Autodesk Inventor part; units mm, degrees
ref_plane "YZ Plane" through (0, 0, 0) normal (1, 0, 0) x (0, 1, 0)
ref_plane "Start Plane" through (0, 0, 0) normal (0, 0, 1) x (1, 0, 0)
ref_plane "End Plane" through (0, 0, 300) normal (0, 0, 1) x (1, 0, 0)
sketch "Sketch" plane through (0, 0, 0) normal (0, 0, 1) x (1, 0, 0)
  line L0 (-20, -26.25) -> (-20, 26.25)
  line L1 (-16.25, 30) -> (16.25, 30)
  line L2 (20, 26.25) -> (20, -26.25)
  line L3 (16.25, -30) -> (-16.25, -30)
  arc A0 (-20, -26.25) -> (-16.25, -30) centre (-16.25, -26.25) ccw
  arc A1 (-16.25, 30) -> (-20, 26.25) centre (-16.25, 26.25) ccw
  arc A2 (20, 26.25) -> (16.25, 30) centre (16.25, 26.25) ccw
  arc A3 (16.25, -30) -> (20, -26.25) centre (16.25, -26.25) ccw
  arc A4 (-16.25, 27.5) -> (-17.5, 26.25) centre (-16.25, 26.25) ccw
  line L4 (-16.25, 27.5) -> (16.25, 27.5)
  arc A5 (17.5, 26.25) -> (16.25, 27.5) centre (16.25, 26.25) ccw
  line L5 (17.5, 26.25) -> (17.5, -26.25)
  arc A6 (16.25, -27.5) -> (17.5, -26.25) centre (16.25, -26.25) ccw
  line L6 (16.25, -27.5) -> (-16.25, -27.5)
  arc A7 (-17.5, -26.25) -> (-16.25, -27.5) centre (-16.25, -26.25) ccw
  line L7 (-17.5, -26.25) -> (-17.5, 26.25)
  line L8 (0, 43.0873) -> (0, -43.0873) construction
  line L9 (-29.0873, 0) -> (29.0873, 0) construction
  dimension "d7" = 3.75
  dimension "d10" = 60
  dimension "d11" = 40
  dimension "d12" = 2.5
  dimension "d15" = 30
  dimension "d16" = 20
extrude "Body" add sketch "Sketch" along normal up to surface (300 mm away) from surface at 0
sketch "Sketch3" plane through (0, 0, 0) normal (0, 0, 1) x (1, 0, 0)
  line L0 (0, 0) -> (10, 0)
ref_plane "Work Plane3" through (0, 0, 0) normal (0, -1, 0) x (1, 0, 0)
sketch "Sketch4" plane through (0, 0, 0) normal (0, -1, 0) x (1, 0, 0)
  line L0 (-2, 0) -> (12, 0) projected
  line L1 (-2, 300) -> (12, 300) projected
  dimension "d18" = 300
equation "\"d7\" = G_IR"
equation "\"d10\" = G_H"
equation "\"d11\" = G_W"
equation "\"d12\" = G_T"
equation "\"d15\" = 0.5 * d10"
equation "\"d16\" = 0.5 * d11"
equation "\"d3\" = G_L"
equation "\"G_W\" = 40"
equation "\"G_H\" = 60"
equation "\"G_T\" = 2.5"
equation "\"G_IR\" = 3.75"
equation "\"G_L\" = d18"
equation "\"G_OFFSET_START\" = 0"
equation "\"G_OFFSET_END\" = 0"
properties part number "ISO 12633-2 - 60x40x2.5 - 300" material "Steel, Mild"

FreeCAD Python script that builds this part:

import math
import FreeCAD as App
import Part
import Sketcher
Q = App.Units.Quantity

doc = App.newDocument("Part")
body = doc.addObject("PartDesign::Body", "Body")

# Sketch on XY plane
sketch1 = body.newObject("Sketcher::SketchObject", "Sketch")
sketch1.AttachmentSupport = (doc.getObject("XY_Plane"), [""])
sketch1.MapMode = "FlatFace"
sketch1.addGeometry(Part.LineSegment(App.Vector(-20, 26.2, 0), App.Vector(-20, -26.2, 0)), False)
sketch1.addGeometry(Part.ArcOfCircle(Part.Circle(App.Vector(-16.2, -26.2, 0), App.Vector(0, 0, 1), 3.8), math.radians(180), math.radians(270)), False)
sketch1.addGeometry(Part.LineSegment(App.Vector(-16.2, -30, 0), App.Vector(16.2, -30, 0)), False)
sketch1.addGeometry(Part.ArcOfCircle(Part.Circle(App.Vector(16.2, -26.2, 0), App.Vector(0, 0, 1), 3.8), math.radians(-90), math.radians(0)), False)
sketch1.addGeometry(Part.LineSegment(App.Vector(20, -26.2, 0), App.Vector(20, 26.2, 0)), False)
sketch1.addGeometry(Part.ArcOfCircle(Part.Circle(App.Vector(16.2, 26.2, 0), App.Vector(0, 0, 1), 3.8), math.radians(0), math.radians(90)), False)
sketch1.addGeometry(Part.LineSegment(App.Vector(16.2, 30, 0), App.Vector(-16.2, 30, 0)), False)
sketch1.addGeometry(Part.ArcOfCircle(Part.Circle(App.Vector(-16.2, 26.2, 0), App.Vector(0, 0, 1), 3.8), math.radians(90), math.radians(180)), False)
sketch1.addGeometry(Part.ArcOfCircle(Part.Circle(App.Vector(-16.2, 26.2, 0), App.Vector(0, 0, 1), 1.2), math.radians(90), math.radians(180)), False)
sketch1.addGeometry(Part.LineSegment(App.Vector(-16.2, 27.5, 0), App.Vector(16.2, 27.5, 0)), False)
sketch1.addGeometry(Part.ArcOfCircle(Part.Circle(App.Vector(16.2, 26.2, 0), App.Vector(0, 0, 1), 1.2), math.radians(0), math.radians(90)), False)
sketch1.addGeometry(Part.LineSegment(App.Vector(17.5, 26.2, 0), App.Vector(17.5, -26.2, 0)), False)
sketch1.addGeometry(Part.ArcOfCircle(Part.Circle(App.Vector(16.2, -26.2, 0), App.Vector(0, 0, 1), 1.2), math.radians(-90), math.radians(0)), False)
sketch1.addGeometry(Part.LineSegment(App.Vector(16.2, -27.5, 0), App.Vector(-16.2, -27.5, 0)), False)
sketch1.addGeometry(Part.ArcOfCircle(Part.Circle(App.Vector(-16.2, -26.2, 0), App.Vector(0, 0, 1), 1.2), math.radians(180), math.radians(270)), False)
sketch1.addGeometry(Part.LineSegment(App.Vector(-17.5, -26.2, 0), App.Vector(-17.5, 26.2, 0)), False)
sketch1.addConstraint(Sketcher.Constraint("Tangent", 0, 2, 1, 1))
sketch1.addConstraint(Sketcher.Constraint("Tangent", 1, 2, 2, 1))
sketch1.addConstraint(Sketcher.Constraint("Tangent", 2, 2, 3, 1))
sketch1.addConstraint(Sketcher.Constraint("Tangent", 3, 2, 4, 1))
sketch1.addConstraint(Sketcher.Constraint("Tangent", 4, 2, 5, 1))
sketch1.addConstraint(Sketcher.Constraint("Tangent", 5, 2, 6, 1))
sketch1.addConstraint(Sketcher.Constraint("Tangent", 6, 2, 7, 1))
sketch1.addConstraint(Sketcher.Constraint("Tangent", 7, 2, 0, 1))
sketch1.addConstraint(Sketcher.Constraint("Tangent", 8, 1, 9, 1))
sketch1.addConstraint(Sketcher.Constraint("Tangent", 9, 2, 10, 2))
sketch1.addConstraint(Sketcher.Constraint("Tangent", 10, 1, 11, 1))
sketch1.addConstraint(Sketcher.Constraint("Tangent", 11, 2, 12, 2))
sketch1.addConstraint(Sketcher.Constraint("Tangent", 12, 1, 13, 1))
sketch1.addConstraint(Sketcher.Constraint("Tangent", 13, 2, 14, 2))
sketch1.addConstraint(Sketcher.Constraint("Tangent", 14, 1, 15, 1))
sketch1.addConstraint(Sketcher.Constraint("Tangent", 15, 2, 8, 2))
sketch1.addConstraint(Sketcher.Constraint("Vertical", 0))
sketch1.addConstraint(Sketcher.Constraint("Horizontal", 2))
sketch1.addConstraint(Sketcher.Constraint("Vertical", 4))
sketch1.addConstraint(Sketcher.Constraint("Horizontal", 6))
sketch1.addConstraint(Sketcher.Constraint("Horizontal", 9))
sketch1.addConstraint(Sketcher.Constraint("Vertical", 11))
sketch1.addConstraint(Sketcher.Constraint("Horizontal", 13))
sketch1.addConstraint(Sketcher.Constraint("Vertical", 15))
sketch1.addConstraint(Sketcher.Constraint("Coincident", 8, 3, 7, 3))
sketch1.addConstraint(Sketcher.Constraint("Coincident", 10, 3, 5, 3))
sketch1.addConstraint(Sketcher.Constraint("Coincident", 12, 3, 3, 3))
sketch1.addConstraint(Sketcher.Constraint("Equal", 1, 3))
sketch1.addConstraint(Sketcher.Constraint("Equal", 3, 5))
sketch1.addConstraint(Sketcher.Constraint("Equal", 5, 7))
sketch1.addConstraint(Sketcher.Constraint("Equal", 12, 14))
sketch1.addConstraint(Sketcher.Constraint("Symmetric", 1, 3, 5, 3, -1, 1))
sketch1.addConstraint(Sketcher.Constraint("Radius", 1, Q("3.75 mm")))
sketch1.addConstraint(Sketcher.Constraint("Radius", 8, Q("1.25 mm")))
sketch1.addConstraint(Sketcher.Constraint("DistanceX", 0, 2, -1, 1, Q("20 mm")))
sketch1.addConstraint(Sketcher.Constraint("DistanceY", 1, 2, -1, 1, Q("30 mm")))
pad1 = body.newObject("PartDesign::Pad", "Pad")
pad1.Profile = sketch1
pad1.Length = 300

doc.recompute()
